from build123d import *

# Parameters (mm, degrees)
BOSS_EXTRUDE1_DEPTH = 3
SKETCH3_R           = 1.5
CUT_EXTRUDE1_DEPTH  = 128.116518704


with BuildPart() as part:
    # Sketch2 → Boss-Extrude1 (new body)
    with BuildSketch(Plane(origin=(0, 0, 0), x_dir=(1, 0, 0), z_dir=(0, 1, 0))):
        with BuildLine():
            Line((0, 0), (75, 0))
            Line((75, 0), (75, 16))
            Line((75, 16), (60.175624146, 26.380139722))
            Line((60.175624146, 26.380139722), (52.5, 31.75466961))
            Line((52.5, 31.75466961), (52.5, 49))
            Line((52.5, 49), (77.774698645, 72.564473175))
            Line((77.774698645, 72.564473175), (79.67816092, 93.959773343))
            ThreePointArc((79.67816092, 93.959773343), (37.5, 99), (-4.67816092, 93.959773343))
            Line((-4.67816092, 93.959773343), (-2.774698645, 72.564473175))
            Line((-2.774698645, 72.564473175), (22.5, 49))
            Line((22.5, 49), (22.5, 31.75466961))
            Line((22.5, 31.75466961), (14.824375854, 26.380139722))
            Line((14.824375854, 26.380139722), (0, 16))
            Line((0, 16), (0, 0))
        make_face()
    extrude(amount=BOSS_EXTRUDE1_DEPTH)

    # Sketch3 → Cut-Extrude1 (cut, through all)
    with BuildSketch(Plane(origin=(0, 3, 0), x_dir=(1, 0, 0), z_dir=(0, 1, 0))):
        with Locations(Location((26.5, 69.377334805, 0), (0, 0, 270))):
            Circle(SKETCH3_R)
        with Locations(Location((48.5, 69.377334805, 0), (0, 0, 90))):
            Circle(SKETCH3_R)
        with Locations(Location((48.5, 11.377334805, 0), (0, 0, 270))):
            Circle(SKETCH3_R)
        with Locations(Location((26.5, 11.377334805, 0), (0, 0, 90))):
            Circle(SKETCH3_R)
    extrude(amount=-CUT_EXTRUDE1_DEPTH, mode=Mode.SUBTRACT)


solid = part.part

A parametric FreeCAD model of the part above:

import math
import FreeCAD as App
import Part
import Sketcher
Q = App.Units.Quantity

doc = App.newDocument("Part")
body = doc.addObject("PartDesign::Body", "Body")

# Sketch on XZ plane
sketch1 = doc.addObject("Sketcher::SketchObject", "Sketch")
body.addObject(sketch1)
sketch1.AttachmentSupport = (doc.XZ_Plane, [""])
sketch1.MapMode = "FlatFace"
sketch1.addGeometry(Part.LineSegment(App.Vector(0, 0, 0), App.Vector(75, 0, 0)), False)
sketch1.addGeometry(Part.LineSegment(App.Vector(75, 0, 0), App.Vector(75, -16, 0)), False)
sketch1.addGeometry(Part.LineSegment(App.Vector(75, -16, 0), App.Vector(60, -26, 0)), False)
sketch1.addGeometry(Part.LineSegment(App.Vector(60, -26, 0), App.Vector(52, -32, 0)), False)
sketch1.addGeometry(Part.LineSegment(App.Vector(52, -32, 0), App.Vector(52, -49, 0)), False)
sketch1.addGeometry(Part.LineSegment(App.Vector(52, -49, 0), App.Vector(78, -73, 0)), False)
sketch1.addGeometry(Part.LineSegment(App.Vector(78, -73, 0), App.Vector(80, -94, 0)), False)
sketch1.addGeometry(Part.ArcOfCircle(Part.Circle(App.Vector(38, 80, 0), App.Vector(0, 0, 1), 179), math.radians(-104), math.radians(-76)), False)
sketch1.addGeometry(Part.LineSegment(App.Vector(-5, -94, 0), App.Vector(-3, -73, 0)), False)
sketch1.addGeometry(Part.LineSegment(App.Vector(-3, -73, 0), App.Vector(22, -49, 0)), False)
sketch1.addGeometry(Part.LineSegment(App.Vector(22, -49, 0), App.Vector(22, -32, 0)), False)
sketch1.addGeometry(Part.LineSegment(App.Vector(22, -32, 0), App.Vector(15, -26, 0)), False)
sketch1.addGeometry(Part.LineSegment(App.Vector(15, -26, 0), App.Vector(0, -16, 0)), False)
sketch1.addGeometry(Part.LineSegment(App.Vector(0, -16, 0), App.Vector(0, 0, 0)), False)
sketch1.addConstraint(Sketcher.Constraint("Coincident", 0, 2, 1, 1))
sketch1.addConstraint(Sketcher.Constraint("Coincident", 1, 2, 2, 1))
sketch1.addConstraint(Sketcher.Constraint("Coincident", 2, 2, 3, 1))
sketch1.addConstraint(Sketcher.Constraint("Coincident", 3, 2, 4, 1))
sketch1.addConstraint(Sketcher.Constraint("Coincident", 4, 2, 5, 1))
sketch1.addConstraint(Sketcher.Constraint("Coincident", 5, 2, 6, 1))
sketch1.addConstraint(Sketcher.Constraint("Coincident", 6, 2, 7, 2))
sketch1.addConstraint(Sketcher.Constraint("Coincident", 7, 1, 8, 1))
sketch1.addConstraint(Sketcher.Constraint("Coincident", 8, 2, 9, 1))
sketch1.addConstraint(Sketcher.Constraint("Coincident", 9, 2, 10, 1))
sketch1.addConstraint(Sketcher.Constraint("Coincident", 10, 2, 11, 1))
sketch1.addConstraint(Sketcher.Constraint("Coincident", 11, 2, 12, 1))
sketch1.addConstraint(Sketcher.Constraint("Coincident", 12, 2, 13, 1))
sketch1.addConstraint(Sketcher.Constraint("Coincident", 13, 2, 0, 1))
sketch1.addConstraint(Sketcher.Constraint("Horizontal", 0))
sketch1.addConstraint(Sketcher.Constraint("Vertical", 1))
sketch1.addConstraint(Sketcher.Constraint("Vertical", 4))
sketch1.addConstraint(Sketcher.Constraint("Vertical", 10))
sketch1.addConstraint(Sketcher.Constraint("Vertical", 13))
sketch1.addConstraint(Sketcher.Constraint("Coincident", 13, 2, -1, 1))
sketch1.addConstraint(Sketcher.Constraint("Parallel", 2, 3))
sketch1.addConstraint(Sketcher.Constraint("Parallel", 11, 12))
sketch1.addConstraint(Sketcher.Constraint("Horizontal", 6, 2, 7, 1))
sketch1.addConstraint(Sketcher.Constraint("Horizontal", 5, 2, 8, 2))
sketch1.addConstraint(Sketcher.Constraint("Horizontal", 4, 2, 9, 2))
sketch1.addConstraint(Sketcher.Constraint("Horizontal", 3, 2, 10, 2))
sketch1.addConstraint(Sketcher.Constraint("Horizontal", 2, 2, 11, 2))
sketch1.addConstraint(Sketcher.Constraint("Horizontal", 1, 2, 12, 2))
sketch1.addConstraint(Sketcher.Constraint("Equal", 6, 8))
sketch1.addConstraint(Sketcher.Constraint("Equal", 5, 9))
sketch1.addConstraint(Sketcher.Constraint("Equal", 3, 11))
sketch1.addConstraint(Sketcher.Constraint("Radius", 7, 179.0))
sketch1.addConstraint(Sketcher.Constraint("DistanceX", 0, 1, 0, 2, 75.0))
sketch1.addConstraint(Sketcher.Constraint("DistanceY", 1, 2, 1, 1, 16.0))
sketch1.addConstraint(Sketcher.Constraint("Angle", 2, Q("-145 deg")))
sketch1.addConstraint(Sketcher.Constraint("DistanceY", -1, 1, 7, 3, 80.0))
sketch1.addConstraint(Sketcher.Constraint("DistanceY", 4, 2, -1, 1, 49.0))
sketch1.addConstraint(Sketcher.Constraint("DistanceX", 7, 3, 3, 2, 15.0))
sketch1.addConstraint(Sketcher.Constraint("DistanceX", -1, 1, 5, 2, 77.774699))
sketch1.addConstraint(Sketcher.Constraint("DistanceY", 6, 2, 5, 2, 21.3953))
sketch1.addConstraint(Sketcher.Constraint("Distance", 2, 18.097221))
sketch1.addConstraint(Sketcher.Constraint("DistanceX", -1, 1, 6, 2, 79.678161))
pad1 = doc.addObject("PartDesign::Pad", "Pad")
body.addObject(pad1)
pad1.Profile = sketch1
pad1.Length = 3
pad1.Reversed = True

# Sketch on XZ plane
sketch2 = doc.addObject("Sketcher::SketchObject", "Sketch001")
body.addObject(sketch2)
sketch2.AttachmentSupport = (doc.XZ_Plane, [""])
sketch2.MapMode = "FlatFace"
sketch2.AttachmentOffset = App.Placement(App.Vector(0, 0, -3), App.Rotation())
sketch2.addGeometry(Part.Circle(App.Vector(26.5, -69.4, 0), App.Vector(0, 0, 1), 1.5), False)
sketch2.addGeometry(Part.Circle(App.Vector(48.5, -69.4, 0), App.Vector(0, 0, 1), 1.5), False)
sketch2.addGeometry(Part.Circle(App.Vector(48.5, -11.4, 0), App.Vector(0, 0, 1), 1.5), False)
sketch2.addGeometry(Part.Circle(App.Vector(26.5, -11.4, 0), App.Vector(0, 0, 1), 1.5), False)
sketch2.addConstraint(Sketcher.Constraint("Equal", 0, 1))
sketch2.addConstraint(Sketcher.Constraint("Equal", 1, 2))
sketch2.addConstraint(Sketcher.Constraint("Equal", 2, 3))
sketch2.addConstraint(Sketcher.Constraint("Horizontal", 0, 3, 1, 3))
sketch2.addConstraint(Sketcher.Constraint("Horizontal", 2, 3, 3, 3))
sketch2.addConstraint(Sketcher.Constraint("Vertical", 1, 3, 2, 3))
sketch2.addConstraint(Sketcher.Constraint("Vertical", 0, 3, 3, 3))
sketch2.addConstraint(Sketcher.Constraint("Diameter", 0, 3.0))
sketch2.addConstraint(Sketcher.Constraint("DistanceX", 0, 3, 1, 3, 22.0))
sketch2.addConstraint(Sketcher.Constraint("DistanceY", 1, 3, 2, 3, 58.0))
sketch2.addConstraint(Sketcher.Constraint("DistanceX", -1, 1, 0, 3, 26.5))
sketch2.addConstraint(Sketcher.Constraint("DistanceY", 0, 3, -1, 1, 69.377335))
pocket1 = doc.addObject("PartDesign::Pocket", "Pocket")
body.addObject(pocket1)
pocket1.Profile = sketch2
pocket1.Type = "ThroughAll"
pocket1.Reversed = True

doc.recompute()
